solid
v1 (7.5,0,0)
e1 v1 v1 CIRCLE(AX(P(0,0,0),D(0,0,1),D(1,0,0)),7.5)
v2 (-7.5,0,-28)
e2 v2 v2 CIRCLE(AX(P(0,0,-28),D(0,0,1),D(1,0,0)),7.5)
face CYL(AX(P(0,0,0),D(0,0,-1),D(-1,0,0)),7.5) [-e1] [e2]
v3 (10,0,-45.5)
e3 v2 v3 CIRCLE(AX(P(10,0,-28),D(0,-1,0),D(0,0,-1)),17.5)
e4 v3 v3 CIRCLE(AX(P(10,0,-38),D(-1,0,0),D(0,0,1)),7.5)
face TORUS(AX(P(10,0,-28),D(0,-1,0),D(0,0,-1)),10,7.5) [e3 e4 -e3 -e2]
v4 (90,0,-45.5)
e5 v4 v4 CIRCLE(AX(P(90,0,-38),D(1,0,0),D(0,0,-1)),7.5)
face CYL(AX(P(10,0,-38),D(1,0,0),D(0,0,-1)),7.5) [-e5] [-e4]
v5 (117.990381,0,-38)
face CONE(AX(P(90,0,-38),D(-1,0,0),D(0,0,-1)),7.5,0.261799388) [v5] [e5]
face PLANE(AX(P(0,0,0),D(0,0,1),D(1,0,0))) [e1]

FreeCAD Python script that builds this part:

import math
import FreeCAD as App
import Part
import Sketcher

V = App.Vector
Q = App.Units.Quantity

doc = App.newDocument("Part")
body = doc.addObject("PartDesign::Body", "Body")

# Sketch on XY plane
sketch1 = body.newObject("Sketcher::SketchObject", "Sketch")
sketch1.AttachmentSupport = (doc.getObject("XY_Plane"), [""])
sketch1.MapMode = "FlatFace"
sketch1.addGeometry(Part.Circle(V(0, 0, 0), V(0, 0, 1), 8), False)
sketch1.addConstraint(Sketcher.Constraint("Coincident", 0, 3, -1, 1))
sketch1.addConstraint(Sketcher.Constraint("Diameter", 0, 15.0))

# Sketch on XZ plane
sketch2 = body.newObject("Sketcher::SketchObject", "Sketch001")
sketch2.AttachmentSupport = (doc.getObject("XZ_Plane"), [""])
sketch2.MapMode = "FlatFace"
sketch2.addGeometry(Part.LineSegment(V(0, 0, 0), V(0, -28, 0)), False)
sketch2.addGeometry(Part.ArcOfCircle(Part.Circle(V(10, -28, 0), V(0, 0, 1), 10), math.radians(180), math.radians(270)), False)
sketch2.addGeometry(Part.LineSegment(V(10, -38, 0), V(90, -38, 0)), False)
sketch2.addConstraint(Sketcher.Constraint("Tangent", 0, 2, 1, 1))
sketch2.addConstraint(Sketcher.Constraint("Tangent", 1, 2, 2, 1))
sketch2.addConstraint(Sketcher.Constraint("Vertical", 0))
sketch2.addConstraint(Sketcher.Constraint("Horizontal", 2))
sketch2.addConstraint(Sketcher.Constraint("Coincident", 0, 1, -1, 1))
sketch2.addConstraint(Sketcher.Constraint("Radius", 1, 10.0))
sketch2.addConstraint(Sketcher.Constraint("DistanceX", 2, 1, 2, 2, 80.0))
sketch2.addConstraint(Sketcher.Constraint("DistanceY", 0, 2, 0, 1, 28.0))
doc.recompute()

additivepipe = body.newObject("PartDesign::AdditivePipe", "AdditivePipe")
additivepipe.Profile = sketch1
additivepipe.Spine = (sketch2, ["Edge1", "Edge2", "Edge3"])

# Sketch on XZ plane
sketch3 = body.newObject("Sketcher::SketchObject", "Sketch002")
sketch3.AttachmentSupport = (doc.getObject("XZ_Plane"), [""])
sketch3.MapMode = "FlatFace"
sketch3.addGeometry(Part.LineSegment(V(90, -38, 0), V(90, -30, 0)), False)
sketch3.addGeometry(Part.LineSegment(V(90, -30, 0), V(118, -38, 0)), False)
sketch3.addGeometry(Part.LineSegment(V(118, -38, 0), V(90, -38, 0)), False)
sketch3.addGeometry(Part.LineSegment(V(90, -38, 0), V(118, -38, 0)), True)  # axis
sketch3.addConstraint(Sketcher.Constraint("Coincident", 0, 2, 1, 1))
sketch3.addConstraint(Sketcher.Constraint("Coincident", 1, 2, 2, 1))
sketch3.addConstraint(Sketcher.Constraint("Coincident", 2, 2, 0, 1))
sketch3.addConstraint(Sketcher.Constraint("Vertical", 0))
sketch3.addConstraint(Sketcher.Constraint("Horizontal", 2))
sketch3.addConstraint(Sketcher.Constraint("Horizontal", 3))
sketch3.addConstraint(Sketcher.Constraint("Coincident", 3, 1, 2, 2))
sketch3.addConstraint(Sketcher.Constraint("Equal", 2, 3))
sketch3.addConstraint(Sketcher.Constraint("Angle", 1, Q("-15 deg")))
sketch3.addConstraint(Sketcher.Constraint("DistanceY", 0, 1, 0, 2, 7.5))
sketch3.addConstraint(Sketcher.Constraint("DistanceX", -1, 1, 0, 2, 90.0))
sketch3.addConstraint(Sketcher.Constraint("DistanceY", 1, 2, -1, 1, 38.0))
revolution = body.newObject("PartDesign::Revolution", "Revolution")
revolution.Profile = sketch3
revolution.ReferenceAxis = (sketch3, ["Axis0"])
revolution.Angle = 360

doc.recompute()
